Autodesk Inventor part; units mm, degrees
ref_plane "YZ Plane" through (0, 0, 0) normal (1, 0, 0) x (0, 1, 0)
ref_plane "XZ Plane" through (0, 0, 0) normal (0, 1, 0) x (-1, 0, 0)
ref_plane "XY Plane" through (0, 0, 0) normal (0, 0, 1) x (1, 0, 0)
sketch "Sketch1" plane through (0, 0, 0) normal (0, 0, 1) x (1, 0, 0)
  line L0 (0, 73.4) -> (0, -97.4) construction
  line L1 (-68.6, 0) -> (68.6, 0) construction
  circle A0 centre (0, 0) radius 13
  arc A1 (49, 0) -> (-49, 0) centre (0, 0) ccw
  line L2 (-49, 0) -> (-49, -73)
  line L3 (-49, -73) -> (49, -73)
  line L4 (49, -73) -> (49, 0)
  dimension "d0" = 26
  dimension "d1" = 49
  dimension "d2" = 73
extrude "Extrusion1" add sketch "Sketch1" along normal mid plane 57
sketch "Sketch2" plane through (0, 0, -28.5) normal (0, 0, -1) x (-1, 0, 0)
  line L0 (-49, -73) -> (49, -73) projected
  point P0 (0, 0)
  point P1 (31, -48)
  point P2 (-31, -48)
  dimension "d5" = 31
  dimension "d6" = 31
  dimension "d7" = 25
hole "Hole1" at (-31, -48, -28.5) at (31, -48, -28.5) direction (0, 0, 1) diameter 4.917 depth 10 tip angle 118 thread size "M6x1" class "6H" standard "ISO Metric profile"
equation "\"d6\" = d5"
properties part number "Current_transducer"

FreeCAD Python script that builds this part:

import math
import FreeCAD as App
import Part
import Sketcher

V = App.Vector

doc = App.newDocument("Part")
body = doc.addObject("PartDesign::Body", "Body")

# Sketch on XY plane
sketch1 = doc.addObject("Sketcher::SketchObject", "Sketch")
body.addObject(sketch1)
sketch1.AttachmentSupport = (doc.XY_Plane, [""])
sketch1.MapMode = "FlatFace"
sketch1.addGeometry([
    Part.LineSegment(V(49, -73, 0), V(49, 0, 0)),  # 0
    Part.ArcOfCircle(Part.Circle(V(0, 0, 0), V(0, 0, 1), 49), math.radians(0), math.radians(180)),  # 1
    Part.LineSegment(V(-49, 0, 0), V(-49, -73, 0)),  # 2
    Part.LineSegment(V(-49, -73, 0), V(49, -73, 0)),  # 3
    Part.Circle(V(0, 0, 0), V(0, 0, 1), 13),  # 4
], False)
sketch1.addConstraint([
    Sketcher.Constraint("Tangent", 0, 2, 1, 1),
    Sketcher.Constraint("Tangent", 1, 2, 2, 1),
    Sketcher.Constraint("Coincident", 2, 2, 3, 1),
    Sketcher.Constraint("Coincident", 3, 2, 0, 1),
    Sketcher.Constraint("Vertical", 0),
    Sketcher.Constraint("Vertical", 2),
    Sketcher.Constraint("Horizontal", 3),
    Sketcher.Constraint("Coincident", 1, 3, -1, 1),
    Sketcher.Constraint("Coincident", 4, 3, -1, 1),
    Sketcher.Constraint("Diameter", 4, 26.0),
    Sketcher.Constraint("Radius", 1, 49.0),
    Sketcher.Constraint("DistanceY", 0, 1, 0, 2, 73.0),
])
pad1 = doc.addObject("PartDesign::Pad", "Pad")
body.addObject(pad1)
pad1.Profile = sketch1
pad1.Length = 57
pad1.Midplane = True

# Sketch on XY plane
sketch2 = doc.addObject("Sketcher::SketchObject", "Sketch001")
body.addObject(sketch2)
sketch2.AttachmentSupport = (doc.XY_Plane, [""])
sketch2.MapMode = "FlatFace"
sketch2.AttachmentOffset = App.Placement(V(0, 0, -28.5), App.Rotation())
sketch2.addGeometry([
    Part.Circle(V(-31, -48, 0), V(0, 0, 1), 2.5),
    Part.Circle(V(31, -48, 0), V(0, 0, 1), 2.5),
], False)
sketch2.addConstraint([
    Sketcher.Constraint("Equal", 0, 1),
    Sketcher.Constraint("Symmetric", 0, 3, 1, 3, -2),
    Sketcher.Constraint("Diameter", 0, 4.917),
    Sketcher.Constraint("DistanceX", 0, 3, -1, 1, 31.0),
    Sketcher.Constraint("DistanceY", 0, 3, -1, 1, 48.0),
])
doc.recompute()
hole = doc.addObject("PartDesign::Hole", "Hole")
body.addObject(hole)
hole.Profile = sketch2
hole.ThreadType = "None"
hole.Diameter = 4.917
hole.DepthType = "Dimension"
hole.Depth = 10
hole.DrillPoint = "Angled"
hole.DrillPointAngle = 118
hole.Reversed = True

doc.recompute()
